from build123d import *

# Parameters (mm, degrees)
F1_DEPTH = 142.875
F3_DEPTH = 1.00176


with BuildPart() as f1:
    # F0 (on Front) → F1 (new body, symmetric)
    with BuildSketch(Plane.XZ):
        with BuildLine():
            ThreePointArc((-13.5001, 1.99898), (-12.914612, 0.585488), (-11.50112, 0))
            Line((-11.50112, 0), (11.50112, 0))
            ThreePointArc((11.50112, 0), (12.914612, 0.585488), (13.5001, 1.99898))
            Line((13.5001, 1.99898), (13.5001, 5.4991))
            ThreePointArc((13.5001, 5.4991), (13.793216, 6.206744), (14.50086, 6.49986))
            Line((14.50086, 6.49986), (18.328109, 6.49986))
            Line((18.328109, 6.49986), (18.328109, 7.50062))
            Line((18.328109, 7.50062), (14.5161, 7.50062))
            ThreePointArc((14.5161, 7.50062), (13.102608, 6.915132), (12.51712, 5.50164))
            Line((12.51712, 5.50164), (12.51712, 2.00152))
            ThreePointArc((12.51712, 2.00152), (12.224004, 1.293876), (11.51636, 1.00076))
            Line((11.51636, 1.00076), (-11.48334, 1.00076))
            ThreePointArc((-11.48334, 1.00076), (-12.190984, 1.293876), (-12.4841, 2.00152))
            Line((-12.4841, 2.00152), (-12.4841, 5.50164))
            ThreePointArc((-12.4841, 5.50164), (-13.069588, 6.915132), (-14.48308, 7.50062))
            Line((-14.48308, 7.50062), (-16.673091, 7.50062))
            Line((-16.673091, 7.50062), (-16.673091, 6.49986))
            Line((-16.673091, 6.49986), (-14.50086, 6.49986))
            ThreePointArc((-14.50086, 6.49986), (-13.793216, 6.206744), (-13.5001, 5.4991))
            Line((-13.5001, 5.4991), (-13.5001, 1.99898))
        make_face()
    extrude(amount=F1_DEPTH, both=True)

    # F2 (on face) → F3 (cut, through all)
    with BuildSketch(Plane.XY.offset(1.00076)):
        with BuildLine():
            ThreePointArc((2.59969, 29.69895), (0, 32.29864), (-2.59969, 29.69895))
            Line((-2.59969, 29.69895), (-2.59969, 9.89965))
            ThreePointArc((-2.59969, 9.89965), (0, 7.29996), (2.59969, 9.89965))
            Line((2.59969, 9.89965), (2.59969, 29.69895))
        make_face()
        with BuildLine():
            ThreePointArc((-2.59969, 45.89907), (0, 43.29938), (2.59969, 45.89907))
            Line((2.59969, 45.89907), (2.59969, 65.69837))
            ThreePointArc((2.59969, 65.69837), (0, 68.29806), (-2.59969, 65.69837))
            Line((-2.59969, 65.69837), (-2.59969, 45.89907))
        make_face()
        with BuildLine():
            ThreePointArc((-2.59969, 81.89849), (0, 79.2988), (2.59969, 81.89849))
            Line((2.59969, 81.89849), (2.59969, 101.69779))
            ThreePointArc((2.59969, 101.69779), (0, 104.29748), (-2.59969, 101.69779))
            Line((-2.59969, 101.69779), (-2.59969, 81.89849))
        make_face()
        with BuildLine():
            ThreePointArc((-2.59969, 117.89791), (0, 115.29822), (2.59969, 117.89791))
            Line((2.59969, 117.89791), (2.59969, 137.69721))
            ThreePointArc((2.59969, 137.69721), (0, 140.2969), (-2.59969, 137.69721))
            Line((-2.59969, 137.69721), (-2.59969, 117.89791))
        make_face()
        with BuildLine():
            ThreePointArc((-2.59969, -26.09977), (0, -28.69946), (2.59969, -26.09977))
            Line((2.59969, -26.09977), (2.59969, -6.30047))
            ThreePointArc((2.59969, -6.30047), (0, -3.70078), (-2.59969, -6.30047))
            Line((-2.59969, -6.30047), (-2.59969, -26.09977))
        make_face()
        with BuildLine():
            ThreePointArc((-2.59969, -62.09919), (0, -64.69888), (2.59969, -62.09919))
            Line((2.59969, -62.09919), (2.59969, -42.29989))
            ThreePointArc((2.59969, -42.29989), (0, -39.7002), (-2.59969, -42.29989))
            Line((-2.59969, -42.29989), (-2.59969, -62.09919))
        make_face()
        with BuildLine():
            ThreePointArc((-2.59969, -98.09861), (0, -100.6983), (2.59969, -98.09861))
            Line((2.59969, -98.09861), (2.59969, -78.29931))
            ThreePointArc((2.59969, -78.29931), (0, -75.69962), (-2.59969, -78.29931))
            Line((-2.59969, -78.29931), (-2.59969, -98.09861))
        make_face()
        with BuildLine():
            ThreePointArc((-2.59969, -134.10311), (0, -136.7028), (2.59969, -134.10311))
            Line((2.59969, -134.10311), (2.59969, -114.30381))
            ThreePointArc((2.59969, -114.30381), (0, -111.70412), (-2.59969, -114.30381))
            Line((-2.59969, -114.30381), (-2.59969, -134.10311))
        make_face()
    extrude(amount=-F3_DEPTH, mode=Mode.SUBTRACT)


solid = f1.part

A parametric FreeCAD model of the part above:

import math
import FreeCAD as App
import Part
import Sketcher
from FreeCAD import Vector
Q = App.Units.Quantity

doc = App.newDocument("Part")
body = doc.addObject("PartDesign::Body", "Body")

sketch1 = doc.addObject("Sketcher::SketchObject", "Sketch")
body.addObject(sketch1)
sketch1.AttachmentSupport = (doc.XZ_Plane, [""])
sketch1.MapMode = "FlatFace"
sketch1.addGeometry(Part.ArcOfCircle(Part.Circle(Vector(-11.5, 2, 0), Vector(0, 0, 1), 2), math.radians(-180), math.radians(-90)), False)
sketch1.addGeometry(Part.LineSegment(Vector(-11.5, 0, 0), Vector(11.5, 0, 0)), False)
sketch1.addGeometry(Part.ArcOfCircle(Part.Circle(Vector(11.5, 2, 0), Vector(0, 0, 1), 2), math.radians(-90), math.radians(0)), False)
sketch1.addGeometry(Part.LineSegment(Vector(13.5, 2, 0), Vector(13.5, 5.5, 0)), False)
sketch1.addGeometry(Part.ArcOfCircle(Part.Circle(Vector(14.5, 5.5, 0), Vector(0, 0, 1), 1), math.radians(90), math.radians(180)), False)
sketch1.addGeometry(Part.LineSegment(Vector(14.5, 6.5, 0), Vector(18.3, 6.5, 0)), False)
sketch1.addGeometry(Part.LineSegment(Vector(18.3, 6.5, 0), Vector(18.3, 7.5, 0)), False)
sketch1.addGeometry(Part.LineSegment(Vector(18.3, 7.5, 0), Vector(14.5, 7.5, 0)), False)
sketch1.addGeometry(Part.ArcOfCircle(Part.Circle(Vector(14.5, 5.5, 0), Vector(0, 0, 1), 2), math.radians(90), math.radians(180)), False)
sketch1.addGeometry(Part.LineSegment(Vector(12.5, 5.5, 0), Vector(12.5, 2, 0)), False)
sketch1.addGeometry(Part.ArcOfCircle(Part.Circle(Vector(11.5, 2, 0), Vector(0, 0, 1), 1), math.radians(-90), math.radians(0)), False)
sketch1.addGeometry(Part.LineSegment(Vector(11.5, 1, 0), Vector(-11.5, 1, 0)), False)
sketch1.addGeometry(Part.ArcOfCircle(Part.Circle(Vector(-11.5, 2, 0), Vector(0, 0, 1), 1), math.radians(-180), math.radians(-90)), False)
sketch1.addGeometry(Part.LineSegment(Vector(-12.5, 2, 0), Vector(-12.5, 5.5, 0)), False)
sketch1.addGeometry(Part.ArcOfCircle(Part.Circle(Vector(-14.5, 5.5, 0), Vector(0, 0, 1), 2), math.radians(0), math.radians(90)), False)
sketch1.addGeometry(Part.LineSegment(Vector(-14.5, 7.5, 0), Vector(-16.7, 7.5, 0)), False)
sketch1.addGeometry(Part.LineSegment(Vector(-16.7, 7.5, 0), Vector(-16.7, 6.5, 0)), False)
sketch1.addGeometry(Part.LineSegment(Vector(-16.7, 6.5, 0), Vector(-14.5, 6.5, 0)), False)
sketch1.addGeometry(Part.ArcOfCircle(Part.Circle(Vector(-14.5, 5.5, 0), Vector(0, 0, 1), 1), math.radians(0), math.radians(90)), False)
sketch1.addGeometry(Part.LineSegment(Vector(-13.5, 5.5, 0), Vector(-13.5, 2, 0)), False)
sketch1.addConstraint(Sketcher.Constraint("Tangent", 0, 2, 1, 1))
sketch1.addConstraint(Sketcher.Constraint("Tangent", 1, 2, 2, 1))
sketch1.addConstraint(Sketcher.Constraint("Tangent", 2, 2, 3, 1))
sketch1.addConstraint(Sketcher.Constraint("Tangent", 3, 2, 4, 2))
sketch1.addConstraint(Sketcher.Constraint("Tangent", 4, 1, 5, 1))
sketch1.addConstraint(Sketcher.Constraint("Coincident", 5, 2, 6, 1))
sketch1.addConstraint(Sketcher.Constraint("Coincident", 6, 2, 7, 1))
sketch1.addConstraint(Sketcher.Constraint("Tangent", 7, 2, 8, 1))
sketch1.addConstraint(Sketcher.Constraint("Tangent", 8, 2, 9, 1))
sketch1.addConstraint(Sketcher.Constraint("Tangent", 9, 2, 10, 2))
sketch1.addConstraint(Sketcher.Constraint("Tangent", 10, 1, 11, 1))
sketch1.addConstraint(Sketcher.Constraint("Tangent", 11, 2, 12, 2))
sketch1.addConstraint(Sketcher.Constraint("Tangent", 12, 1, 13, 1))
sketch1.addConstraint(Sketcher.Constraint("Tangent", 13, 2, 14, 1))
sketch1.addConstraint(Sketcher.Constraint("Tangent", 14, 2, 15, 1))
sketch1.addConstraint(Sketcher.Constraint("Coincident", 15, 2, 16, 1))
sketch1.addConstraint(Sketcher.Constraint("Coincident", 16, 2, 17, 1))
sketch1.addConstraint(Sketcher.Constraint("Tangent", 17, 2, 18, 2))
sketch1.addConstraint(Sketcher.Constraint("Tangent", 18, 1, 19, 1))
sketch1.addConstraint(Sketcher.Constraint("Tangent", 19, 2, 0, 1))
sketch1.addConstraint(Sketcher.Constraint("Horizontal", 1))
sketch1.addConstraint(Sketcher.Constraint("Vertical", 3))
sketch1.addConstraint(Sketcher.Constraint("Horizontal", 5))
sketch1.addConstraint(Sketcher.Constraint("Vertical", 6))
sketch1.addConstraint(Sketcher.Constraint("Horizontal", 7))
sketch1.addConstraint(Sketcher.Constraint("Vertical", 9))
sketch1.addConstraint(Sketcher.Constraint("Horizontal", 11))
sketch1.addConstraint(Sketcher.Constraint("Vertical", 13))
sketch1.addConstraint(Sketcher.Constraint("Horizontal", 15))
sketch1.addConstraint(Sketcher.Constraint("Vertical", 16))
sketch1.addConstraint(Sketcher.Constraint("Horizontal", 17))
sketch1.addConstraint(Sketcher.Constraint("Vertical", 19))
sketch1.addConstraint(Sketcher.Constraint("Equal", 0, 2))
sketch1.addConstraint(Sketcher.Constraint("Equal", 2, 8))
sketch1.addConstraint(Sketcher.Constraint("Equal", 4, 10))
sketch1.addConstraint(Sketcher.Constraint("Equal", 10, 12))
sketch1.addConstraint(Sketcher.Constraint("Equal", 8, 14))
sketch1.addConstraint(Sketcher.Constraint("Equal", 12, 18))
sketch1.addConstraint(Sketcher.Constraint("Symmetric", 0, 2, 1, 2, -1, 1))
sketch1.addConstraint(Sketcher.Constraint("Horizontal", 8, 3, 14, 3))
sketch1.addConstraint(Sketcher.Constraint("Horizontal", 4, 3, 18, 3))
sketch1.addConstraint(Sketcher.Constraint("Equal", 3, 9))
sketch1.addConstraint(Sketcher.Constraint("Radius", 0, Q("0.0787 in")))
sketch1.addConstraint(Sketcher.Constraint("Radius", 4, Q("0.0394 in")))
sketch1.addConstraint(Sketcher.Constraint("DistanceX", 2, 2, 8, 3, Q("0.04 in")))
sketch1.addConstraint(Sketcher.Constraint("DistanceX", 18, 1, 13, 2, Q("0.04 in")))
sketch1.addConstraint(Sketcher.Constraint("DistanceX", 1, 1, 1, 2, Q("0.9056 in")))
sketch1.addConstraint(Sketcher.Constraint("DistanceY", 3, 1, 3, 2, Q("0.1378 in")))
sketch1.addConstraint(Sketcher.Constraint("DistanceY", 6, 1, 6, 2, Q("0.0394 in")))
sketch1.addConstraint(Sketcher.Constraint("DistanceX", 5, 1, 5, 2, 3.827249))
sketch1.addConstraint(Sketcher.Constraint("DistanceX", 15, 2, 15, 1, 2.190011))
pad1 = doc.addObject("PartDesign::Pad", "Pad")
body.addObject(pad1)
pad1.Profile = sketch1
pad1.Length = Q("11.25 in")
pad1.Midplane = True

sketch2 = doc.addObject("Sketcher::SketchObject", "Sketch001")
body.addObject(sketch2)
sketch2.AttachmentSupport = (doc.XY_Plane, [""])
sketch2.MapMode = "FlatFace"
sketch2.AttachmentOffset = App.Placement(Vector(0, 0, 0.0394 * 25.4), App.Rotation())
sketch2.addGeometry(Part.ArcOfCircle(Part.Circle(Vector(0, 29.7, 0), Vector(0, 0, 1), 2.6), math.radians(0), math.radians(180)), False)
sketch2.addGeometry(Part.LineSegment(Vector(-2.6, 29.7, 0), Vector(-2.6, 9.9, 0)), False)
sketch2.addGeometry(Part.ArcOfCircle(Part.Circle(Vector(0, 9.9, 0), Vector(0, 0, 1), 2.6), math.radians(180), math.radians(360)), False)
sketch2.addGeometry(Part.LineSegment(Vector(2.6, 9.9, 0), Vector(2.6, 29.7, 0)), False)
sketch2.addGeometry(Part.ArcOfCircle(Part.Circle(Vector(0, 45.9, 0), Vector(0, 0, 1), 2.6), math.radians(180), math.radians(360)), False)
sketch2.addGeometry(Part.LineSegment(Vector(2.6, 45.9, 0), Vector(2.6, 65.7, 0)), False)
sketch2.addGeometry(Part.ArcOfCircle(Part.Circle(Vector(0, 65.7, 0), Vector(0, 0, 1), 2.6), math.radians(0), math.radians(180)), False)
sketch2.addGeometry(Part.LineSegment(Vector(-2.6, 65.7, 0), Vector(-2.6, 45.9, 0)), False)
sketch2.addGeometry(Part.ArcOfCircle(Part.Circle(Vector(0, 81.9, 0), Vector(0, 0, 1), 2.6), math.radians(180), math.radians(360)), False)
sketch2.addGeometry(Part.LineSegment(Vector(2.6, 81.9, 0), Vector(2.6, 101.7, 0)), False)
sketch2.addGeometry(Part.ArcOfCircle(Part.Circle(Vector(0, 101.7, 0), Vector(0, 0, 1), 2.6), math.radians(0), math.radians(180)), False)
sketch2.addGeometry(Part.LineSegment(Vector(-2.6, 101.7, 0), Vector(-2.6, 81.9, 0)), False)
sketch2.addGeometry(Part.ArcOfCircle(Part.Circle(Vector(0, 117.9, 0), Vector(0, 0, 1), 2.6), math.radians(180), math.radians(360)), False)
sketch2.addGeometry(Part.LineSegment(Vector(2.6, 117.9, 0), Vector(2.6, 137.7, 0)), False)
sketch2.addGeometry(Part.ArcOfCircle(Part.Circle(Vector(0, 137.7, 0), Vector(0, 0, 1), 2.6), math.radians(0), math.radians(180)), False)
sketch2.addGeometry(Part.LineSegment(Vector(-2.6, 137.7, 0), Vector(-2.6, 117.9, 0)), False)
sketch2.addGeometry(Part.ArcOfCircle(Part.Circle(Vector(0, -26.1, 0), Vector(0, 0, 1), 2.6), math.radians(180), math.radians(360)), False)
sketch2.addGeometry(Part.LineSegment(Vector(2.6, -26.1, 0), Vector(2.6, -6.3, 0)), False)
sketch2.addGeometry(Part.ArcOfCircle(Part.Circle(Vector(0, -6.3, 0), Vector(0, 0, 1), 2.6), math.radians(0), math.radians(180)), False)
sketch2.addGeometry(Part.LineSegment(Vector(-2.6, -6.3, 0), Vector(-2.6, -26.1, 0)), False)
sketch2.addGeometry(Part.ArcOfCircle(Part.Circle(Vector(0, -62.1, 0), Vector(0, 0, 1), 2.6), math.radians(180), math.radians(360)), False)
sketch2.addGeometry(Part.LineSegment(Vector(2.6, -62.1, 0), Vector(2.6, -42.3, 0)), False)
sketch2.addGeometry(Part.ArcOfCircle(Part.Circle(Vector(0, -42.3, 0), Vector(0, 0, 1), 2.6), math.radians(0), math.radians(180)), False)
sketch2.addGeometry(Part.LineSegment(Vector(-2.6, -42.3, 0), Vector(-2.6, -62.1, 0)), False)
sketch2.addGeometry(Part.ArcOfCircle(Part.Circle(Vector(0, -98.1, 0), Vector(0, 0, 1), 2.6), math.radians(180), math.radians(360)), False)
sketch2.addGeometry(Part.LineSegment(Vector(2.6, -98.1, 0), Vector(2.6, -78.3, 0)), False)
sketch2.addGeometry(Part.ArcOfCircle(Part.Circle(Vector(0, -78.3, 0), Vector(0, 0, 1), 2.6), math.radians(0), math.radians(180)), False)
sketch2.addGeometry(Part.LineSegment(Vector(-2.6, -78.3, 0), Vector(-2.6, -98.1, 0)), False)
sketch2.addGeometry(Part.ArcOfCircle(Part.Circle(Vector(0, -134.1, 0), Vector(0, 0, 1), 2.6), math.radians(180), math.radians(360)), False)
sketch2.addGeometry(Part.LineSegment(Vector(2.6, -134.1, 0), Vector(2.6, -114.3, 0)), False)
sketch2.addGeometry(Part.ArcOfCircle(Part.Circle(Vector(0, -114.3, 0), Vector(0, 0, 1), 2.6), math.radians(0), math.radians(180)), False)
sketch2.addGeometry(Part.LineSegment(Vector(-2.6, -114.3, 0), Vector(-2.6, -134.1, 0)), False)
sketch2.addConstraint(Sketcher.Constraint("Tangent", 0, 2, 1, 1))
sketch2.addConstraint(Sketcher.Constraint("Tangent", 1, 2, 2, 1))
sketch2.addConstraint(Sketcher.Constraint("Tangent", 2, 2, 3, 1))
sketch2.addConstraint(Sketcher.Constraint("Tangent", 3, 2, 0, 1))
sketch2.addConstraint(Sketcher.Constraint("Tangent", 4, 2, 5, 1))
sketch2.addConstraint(Sketcher.Constraint("Tangent", 5, 2, 6, 1))
sketch2.addConstraint(Sketcher.Constraint("Tangent", 6, 2, 7, 1))
sketch2.addConstraint(Sketcher.Constraint("Tangent", 7, 2, 4, 1))
sketch2.addConstraint(Sketcher.Constraint("Tangent", 8, 2, 9, 1))
sketch2.addConstraint(Sketcher.Constraint("Tangent", 9, 2, 10, 1))
sketch2.addConstraint(Sketcher.Constraint("Tangent", 10, 2, 11, 1))
sketch2.addConstraint(Sketcher.Constraint("Tangent", 11, 2, 8, 1))
sketch2.addConstraint(Sketcher.Constraint("Tangent", 12, 2, 13, 1))
sketch2.addConstraint(Sketcher.Constraint("Tangent", 13, 2, 14, 1))
sketch2.addConstraint(Sketcher.Constraint("Tangent", 14, 2, 15, 1))
sketch2.addConstraint(Sketcher.Constraint("Tangent", 15, 2, 12, 1))
sketch2.addConstraint(Sketcher.Constraint("Tangent", 16, 2, 17, 1))
sketch2.addConstraint(Sketcher.Constraint("Tangent", 17, 2, 18, 1))
sketch2.addConstraint(Sketcher.Constraint("Tangent", 18, 2, 19, 1))
sketch2.addConstraint(Sketcher.Constraint("Tangent", 19, 2, 16, 1))
sketch2.addConstraint(Sketcher.Constraint("Tangent", 20, 2, 21, 1))
sketch2.addConstraint(Sketcher.Constraint("Tangent", 21, 2, 22, 1))
sketch2.addConstraint(Sketcher.Constraint("Tangent", 22, 2, 23, 1))
sketch2.addConstraint(Sketcher.Constraint("Tangent", 23, 2, 20, 1))
sketch2.addConstraint(Sketcher.Constraint("Tangent", 24, 2, 25, 1))
sketch2.addConstraint(Sketcher.Constraint("Tangent", 25, 2, 26, 1))
sketch2.addConstraint(Sketcher.Constraint("Tangent", 26, 2, 27, 1))
sketch2.addConstraint(Sketcher.Constraint("Tangent", 27, 2, 24, 1))
sketch2.addConstraint(Sketcher.Constraint("Tangent", 28, 2, 29, 1))
sketch2.addConstraint(Sketcher.Constraint("Tangent", 29, 2, 30, 1))
sketch2.addConstraint(Sketcher.Constraint("Tangent", 30, 2, 31, 1))
sketch2.addConstraint(Sketcher.Constraint("Tangent", 31, 2, 28, 1))
sketch2.addConstraint(Sketcher.Constraint("Vertical", 1))
sketch2.addConstraint(Sketcher.Constraint("Vertical", 3))
sketch2.addConstraint(Sketcher.Constraint("Vertical", 5))
sketch2.addConstraint(Sketcher.Constraint("Vertical", 7))
sketch2.addConstraint(Sketcher.Constraint("Vertical", 9))
sketch2.addConstraint(Sketcher.Constraint("Vertical", 11))
sketch2.addConstraint(Sketcher.Constraint("Vertical", 13))
sketch2.addConstraint(Sketcher.Constraint("Vertical", 15))
sketch2.addConstraint(Sketcher.Constraint("Vertical", 17))
sketch2.addConstraint(Sketcher.Constraint("Vertical", 19))
sketch2.addConstraint(Sketcher.Constraint("Vertical", 21))
sketch2.addConstraint(Sketcher.Constraint("Vertical", 23))
sketch2.addConstraint(Sketcher.Constraint("Vertical", 25))
sketch2.addConstraint(Sketcher.Constraint("Vertical", 27))
sketch2.addConstraint(Sketcher.Constraint("Vertical", 29))
sketch2.addConstraint(Sketcher.Constraint("Vertical", 31))
sketch2.addConstraint(Sketcher.Constraint("Equal", 2, 4))
sketch2.addConstraint(Sketcher.Constraint("Equal", 6, 8))
sketch2.addConstraint(Sketcher.Constraint("Equal", 10, 12))
sketch2.addConstraint(Sketcher.Constraint("Equal", 14, 16))
sketch2.addConstraint(Sketcher.Constraint("Equal", 18, 20))
sketch2.addConstraint(Sketcher.Constraint("Equal", 22, 24))
sketch2.addConstraint(Sketcher.Constraint("Equal", 26, 28))
sketch2.addConstraint(Sketcher.Constraint("PointOnObject", 0, 3, -2))
sketch2.addConstraint(Sketcher.Constraint("PointOnObject", 4, 3, -2))
sketch2.addConstraint(Sketcher.Constraint("PointOnObject", 8, 3, -2))
sketch2.addConstraint(Sketcher.Constraint("PointOnObject", 12, 3, -2))
sketch2.addConstraint(Sketcher.Constraint("PointOnObject", 16, 3, -2))
sketch2.addConstraint(Sketcher.Constraint("PointOnObject", 20, 3, -2))
sketch2.addConstraint(Sketcher.Constraint("PointOnObject", 24, 3, -2))
sketch2.addConstraint(Sketcher.Constraint("PointOnObject", 28, 3, -2))
sketch2.addConstraint(Sketcher.Constraint("Equal", 3, 5))
sketch2.addConstraint(Sketcher.Constraint("Equal", 7, 9))
sketch2.addConstraint(Sketcher.Constraint("Equal", 11, 13))
sketch2.addConstraint(Sketcher.Constraint("Equal", 15, 17))
sketch2.addConstraint(Sketcher.Constraint("Equal", 19, 21))
sketch2.addConstraint(Sketcher.Constraint("Equal", 23, 25))
sketch2.addConstraint(Sketcher.Constraint("Equal", 27, 29))
sketch2.addConstraint(Sketcher.Constraint("DistanceY", 1, 2, 1, 1, Q("0.7795 in")))
sketch2.addConstraint(Sketcher.Constraint("Radius", 0, 2.59969))
sketch2.addConstraint(Sketcher.Constraint("DistanceY", 28, 3, 26, 3, Q("2.197 in")))
sketch2.addConstraint(Sketcher.Constraint("DistanceY", 0, 3, 4, 3, Q("0.6378 in")))
sketch2.addConstraint(Sketcher.Constraint("DistanceY", 6, 3, 8, 3, Q("0.6378 in")))
sketch2.addConstraint(Sketcher.Constraint("DistanceY", 10, 3, 12, 3, Q("0.6378 in")))
sketch2.addConstraint(Sketcher.Constraint("DistanceY", 16, 3, 2, 3, Q("1.4173 in")))
sketch2.addConstraint(Sketcher.Constraint("DistanceY", 20, 3, 16, 3, Q("1.4173 in")))
sketch2.addConstraint(Sketcher.Constraint("DistanceY", 24, 3, 20, 3, Q("1.4173 in")))
sketch2.addConstraint(Sketcher.Constraint("DistanceY", -1, 1, 0, 3, 29.69895))
pocket1 = doc.addObject("PartDesign::Pocket", "Pocket")
body.addObject(pocket1)
pocket1.Profile = sketch2
pocket1.Type = "ThroughAll"

doc.recompute()
